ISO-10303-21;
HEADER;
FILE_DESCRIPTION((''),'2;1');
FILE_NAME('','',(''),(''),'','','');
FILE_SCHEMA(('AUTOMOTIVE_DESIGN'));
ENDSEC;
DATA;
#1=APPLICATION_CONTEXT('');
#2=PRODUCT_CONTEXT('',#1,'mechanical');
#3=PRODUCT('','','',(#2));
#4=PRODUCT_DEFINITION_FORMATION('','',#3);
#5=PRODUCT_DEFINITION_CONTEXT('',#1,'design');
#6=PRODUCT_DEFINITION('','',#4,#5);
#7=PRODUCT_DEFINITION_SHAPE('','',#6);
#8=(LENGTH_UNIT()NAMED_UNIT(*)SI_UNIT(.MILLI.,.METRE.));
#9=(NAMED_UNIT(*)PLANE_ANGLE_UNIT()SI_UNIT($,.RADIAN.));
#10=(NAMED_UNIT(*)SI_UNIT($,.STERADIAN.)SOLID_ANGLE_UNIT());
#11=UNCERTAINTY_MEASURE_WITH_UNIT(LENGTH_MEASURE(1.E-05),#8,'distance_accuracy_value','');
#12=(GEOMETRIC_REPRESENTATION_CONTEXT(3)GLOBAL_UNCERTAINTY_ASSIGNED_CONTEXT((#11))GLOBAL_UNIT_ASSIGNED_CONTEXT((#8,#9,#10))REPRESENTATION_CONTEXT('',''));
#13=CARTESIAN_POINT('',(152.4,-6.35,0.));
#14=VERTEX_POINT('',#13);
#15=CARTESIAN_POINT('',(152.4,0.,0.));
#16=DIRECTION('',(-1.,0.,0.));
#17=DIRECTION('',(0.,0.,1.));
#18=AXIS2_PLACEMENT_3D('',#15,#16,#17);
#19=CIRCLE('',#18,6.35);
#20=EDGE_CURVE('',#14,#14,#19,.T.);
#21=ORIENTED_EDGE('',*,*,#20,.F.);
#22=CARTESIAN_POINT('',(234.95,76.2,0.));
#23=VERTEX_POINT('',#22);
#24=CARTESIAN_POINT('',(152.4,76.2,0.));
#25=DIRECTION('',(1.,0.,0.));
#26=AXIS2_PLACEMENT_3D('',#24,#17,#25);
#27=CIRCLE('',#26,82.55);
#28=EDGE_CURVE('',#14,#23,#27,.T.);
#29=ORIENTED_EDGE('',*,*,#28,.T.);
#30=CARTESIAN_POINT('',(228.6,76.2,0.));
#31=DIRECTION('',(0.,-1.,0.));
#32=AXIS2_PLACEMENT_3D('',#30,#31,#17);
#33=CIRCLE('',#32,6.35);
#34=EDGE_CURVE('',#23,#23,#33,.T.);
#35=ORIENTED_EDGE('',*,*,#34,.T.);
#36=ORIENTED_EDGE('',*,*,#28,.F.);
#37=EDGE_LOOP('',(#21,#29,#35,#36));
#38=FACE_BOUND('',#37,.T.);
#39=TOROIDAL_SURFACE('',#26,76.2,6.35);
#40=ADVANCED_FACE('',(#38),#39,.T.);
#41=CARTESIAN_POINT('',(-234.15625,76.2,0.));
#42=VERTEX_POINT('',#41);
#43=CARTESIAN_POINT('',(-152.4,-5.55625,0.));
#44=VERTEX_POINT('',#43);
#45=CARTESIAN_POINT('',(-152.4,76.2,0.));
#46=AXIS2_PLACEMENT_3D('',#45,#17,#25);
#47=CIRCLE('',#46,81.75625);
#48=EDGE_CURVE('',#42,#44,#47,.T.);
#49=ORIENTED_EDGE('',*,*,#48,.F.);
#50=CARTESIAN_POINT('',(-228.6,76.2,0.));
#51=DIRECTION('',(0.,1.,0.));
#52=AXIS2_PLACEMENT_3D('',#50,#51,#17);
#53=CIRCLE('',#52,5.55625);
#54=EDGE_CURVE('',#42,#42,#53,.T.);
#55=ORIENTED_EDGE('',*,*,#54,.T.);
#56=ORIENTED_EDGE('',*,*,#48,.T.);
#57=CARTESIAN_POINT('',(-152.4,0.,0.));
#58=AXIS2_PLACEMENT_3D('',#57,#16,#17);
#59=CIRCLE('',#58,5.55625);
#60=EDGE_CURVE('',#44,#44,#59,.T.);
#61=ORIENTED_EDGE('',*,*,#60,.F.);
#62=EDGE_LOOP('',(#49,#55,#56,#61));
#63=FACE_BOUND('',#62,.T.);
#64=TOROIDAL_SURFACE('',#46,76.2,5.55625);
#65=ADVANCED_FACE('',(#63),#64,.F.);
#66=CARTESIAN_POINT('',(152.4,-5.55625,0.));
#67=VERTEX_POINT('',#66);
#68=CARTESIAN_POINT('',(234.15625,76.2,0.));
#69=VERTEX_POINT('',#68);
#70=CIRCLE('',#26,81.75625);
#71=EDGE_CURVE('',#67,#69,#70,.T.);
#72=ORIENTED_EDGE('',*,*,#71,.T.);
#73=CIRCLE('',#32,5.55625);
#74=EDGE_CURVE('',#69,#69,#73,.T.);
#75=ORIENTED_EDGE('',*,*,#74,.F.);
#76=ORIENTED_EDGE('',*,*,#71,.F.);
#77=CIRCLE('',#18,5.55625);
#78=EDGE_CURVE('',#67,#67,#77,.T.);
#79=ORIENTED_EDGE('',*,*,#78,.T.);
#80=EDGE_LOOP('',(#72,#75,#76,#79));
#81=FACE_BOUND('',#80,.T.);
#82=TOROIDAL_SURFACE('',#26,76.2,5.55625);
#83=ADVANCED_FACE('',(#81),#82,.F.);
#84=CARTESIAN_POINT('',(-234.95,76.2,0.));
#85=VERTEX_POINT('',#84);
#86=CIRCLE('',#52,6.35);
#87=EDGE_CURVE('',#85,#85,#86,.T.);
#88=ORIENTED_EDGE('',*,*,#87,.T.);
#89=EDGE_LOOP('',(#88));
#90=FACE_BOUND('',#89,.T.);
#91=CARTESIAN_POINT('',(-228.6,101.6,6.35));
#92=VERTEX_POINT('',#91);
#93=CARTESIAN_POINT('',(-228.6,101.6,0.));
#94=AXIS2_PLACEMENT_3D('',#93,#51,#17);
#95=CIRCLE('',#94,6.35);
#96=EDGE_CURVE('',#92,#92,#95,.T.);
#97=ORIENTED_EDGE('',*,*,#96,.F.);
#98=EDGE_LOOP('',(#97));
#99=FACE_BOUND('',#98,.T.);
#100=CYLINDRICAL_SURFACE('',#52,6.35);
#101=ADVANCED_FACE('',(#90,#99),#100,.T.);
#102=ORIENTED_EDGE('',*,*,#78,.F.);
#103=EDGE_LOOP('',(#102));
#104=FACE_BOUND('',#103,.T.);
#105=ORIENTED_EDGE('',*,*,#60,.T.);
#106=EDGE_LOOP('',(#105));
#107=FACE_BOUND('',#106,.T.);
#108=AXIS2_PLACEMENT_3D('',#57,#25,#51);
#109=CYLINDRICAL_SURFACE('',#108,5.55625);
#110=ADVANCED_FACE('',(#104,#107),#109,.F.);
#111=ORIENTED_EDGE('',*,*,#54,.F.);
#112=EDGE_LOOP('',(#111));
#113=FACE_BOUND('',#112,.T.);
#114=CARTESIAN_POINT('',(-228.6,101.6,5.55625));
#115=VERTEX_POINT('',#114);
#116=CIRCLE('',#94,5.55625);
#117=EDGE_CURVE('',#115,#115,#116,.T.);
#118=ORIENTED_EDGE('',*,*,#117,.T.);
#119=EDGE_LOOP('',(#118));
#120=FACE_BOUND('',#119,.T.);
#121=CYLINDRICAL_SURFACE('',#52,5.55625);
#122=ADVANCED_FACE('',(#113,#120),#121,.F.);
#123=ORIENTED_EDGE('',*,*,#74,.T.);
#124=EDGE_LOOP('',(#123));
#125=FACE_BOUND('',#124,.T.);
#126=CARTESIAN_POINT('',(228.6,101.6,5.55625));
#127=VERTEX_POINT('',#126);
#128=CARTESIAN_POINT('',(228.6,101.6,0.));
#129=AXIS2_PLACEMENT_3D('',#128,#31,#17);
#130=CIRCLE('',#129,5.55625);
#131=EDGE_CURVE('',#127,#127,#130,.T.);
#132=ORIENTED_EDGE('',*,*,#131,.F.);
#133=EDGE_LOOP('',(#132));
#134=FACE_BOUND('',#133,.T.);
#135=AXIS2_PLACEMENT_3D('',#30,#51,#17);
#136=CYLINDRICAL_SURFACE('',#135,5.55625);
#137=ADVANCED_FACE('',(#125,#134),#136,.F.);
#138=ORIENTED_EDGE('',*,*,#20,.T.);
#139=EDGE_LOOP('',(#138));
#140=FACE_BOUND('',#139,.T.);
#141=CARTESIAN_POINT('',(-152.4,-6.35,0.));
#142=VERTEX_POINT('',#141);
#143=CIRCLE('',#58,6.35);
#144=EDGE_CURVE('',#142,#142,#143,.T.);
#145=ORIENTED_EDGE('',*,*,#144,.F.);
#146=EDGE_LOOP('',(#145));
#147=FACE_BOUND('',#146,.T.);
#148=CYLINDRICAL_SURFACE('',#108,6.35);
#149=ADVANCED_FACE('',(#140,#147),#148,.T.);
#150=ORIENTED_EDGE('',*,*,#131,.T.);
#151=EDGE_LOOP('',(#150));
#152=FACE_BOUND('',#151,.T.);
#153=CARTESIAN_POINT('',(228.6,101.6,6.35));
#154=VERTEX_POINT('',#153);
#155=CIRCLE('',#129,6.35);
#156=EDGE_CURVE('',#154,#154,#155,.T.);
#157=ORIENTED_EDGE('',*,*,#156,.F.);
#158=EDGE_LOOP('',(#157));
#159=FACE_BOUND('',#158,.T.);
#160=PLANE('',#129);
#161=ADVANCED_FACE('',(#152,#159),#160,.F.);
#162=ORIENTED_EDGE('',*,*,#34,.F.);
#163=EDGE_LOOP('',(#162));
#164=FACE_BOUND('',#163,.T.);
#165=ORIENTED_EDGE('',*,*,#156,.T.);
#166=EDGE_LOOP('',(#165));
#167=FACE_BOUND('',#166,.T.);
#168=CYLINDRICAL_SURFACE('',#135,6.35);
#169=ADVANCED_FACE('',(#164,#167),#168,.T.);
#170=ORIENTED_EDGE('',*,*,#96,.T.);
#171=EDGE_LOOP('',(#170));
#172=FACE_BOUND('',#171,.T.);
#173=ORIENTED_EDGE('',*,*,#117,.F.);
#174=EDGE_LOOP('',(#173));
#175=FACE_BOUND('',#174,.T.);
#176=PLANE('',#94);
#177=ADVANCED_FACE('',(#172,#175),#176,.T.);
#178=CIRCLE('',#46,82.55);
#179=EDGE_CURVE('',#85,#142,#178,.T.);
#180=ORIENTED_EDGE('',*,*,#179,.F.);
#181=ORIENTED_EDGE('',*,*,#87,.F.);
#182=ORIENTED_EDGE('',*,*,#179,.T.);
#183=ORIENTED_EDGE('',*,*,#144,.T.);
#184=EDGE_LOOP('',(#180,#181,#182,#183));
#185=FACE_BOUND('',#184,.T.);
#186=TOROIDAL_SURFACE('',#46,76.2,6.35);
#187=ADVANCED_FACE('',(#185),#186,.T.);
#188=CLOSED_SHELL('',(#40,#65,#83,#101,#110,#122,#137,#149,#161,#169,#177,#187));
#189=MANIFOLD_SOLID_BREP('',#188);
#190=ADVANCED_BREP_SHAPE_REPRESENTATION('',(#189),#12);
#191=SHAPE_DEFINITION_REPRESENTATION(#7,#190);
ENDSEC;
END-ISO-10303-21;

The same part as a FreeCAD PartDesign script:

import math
import FreeCAD as App
import Part
import Sketcher
from FreeCAD import Vector
Q = App.Units.Quantity

doc = App.newDocument("Part")
body = doc.addObject("PartDesign::Body", "Body")

# Sketch on XZ plane
sketch1 = doc.addObject("Sketcher::SketchObject", "Sketch")
body.addObject(sketch1)
sketch1.AttachmentSupport = (doc.XZ_Plane, [""])
sketch1.MapMode = "FlatFace"
sketch1.AttachmentOffset = App.Placement(Vector(0, 0, -4 * 25.4), App.Rotation())
sketch1.addGeometry(Part.Circle(Vector(-228.6, 0, 0), Vector(0, 0, 1), 6.35), False)
sketch1.addGeometry(Part.Circle(Vector(-228.6, 0, 0), Vector(0, 0, 1), 5.55625), False)
sketch1.addConstraint(Sketcher.Constraint("Coincident", 1, 3, 0, 3))
sketch1.addConstraint(Sketcher.Constraint("PointOnObject", 0, 3, -1))
sketch1.addConstraint(Sketcher.Constraint("Diameter", 0, Q("0.5 in")))
sketch1.addConstraint(Sketcher.Constraint("Diameter", 1, Q("0.4375 in")))
sketch1.addConstraint(Sketcher.Constraint("DistanceX", 0, 3, -1, 1, Q("9 in")))

# Sketch on XY plane
sketch2 = doc.addObject("Sketcher::SketchObject", "Sketch001")
body.addObject(sketch2)
sketch2.AttachmentSupport = (doc.XY_Plane, [""])
sketch2.MapMode = "FlatFace"
sketch2.addGeometry(Part.LineSegment(Vector(-228.6, 101.6, 0), Vector(-228.6, 76.2, 0)), False)
sketch2.addGeometry(Part.ArcOfCircle(Part.Circle(Vector(-152.4, 76.2, 0), Vector(0, 0, 1), 76.2), math.radians(-180), math.radians(-90)), False)
sketch2.addGeometry(Part.LineSegment(Vector(-152.4, 0, 0), Vector(152.4, 0, 0)), False)
sketch2.addGeometry(Part.ArcOfCircle(Part.Circle(Vector(152.4, 76.2, 0), Vector(0, 0, 1), 76.2), math.radians(-90), math.radians(0)), False)
sketch2.addGeometry(Part.LineSegment(Vector(228.6, 76.2, 0), Vector(228.6, 101.6, 0)), False)
sketch2.addConstraint(Sketcher.Constraint("Tangent", 0, 2, 1, 1))
sketch2.addConstraint(Sketcher.Constraint("Tangent", 1, 2, 2, 1))
sketch2.addConstraint(Sketcher.Constraint("Tangent", 2, 2, 3, 1))
sketch2.addConstraint(Sketcher.Constraint("Tangent", 3, 2, 4, 1))
sketch2.addConstraint(Sketcher.Constraint("Vertical", 0))
sketch2.addConstraint(Sketcher.Constraint("Horizontal", 2))
sketch2.addConstraint(Sketcher.Constraint("Vertical", 4))
sketch2.addConstraint(Sketcher.Constraint("Equal", 1, 3))
sketch2.addConstraint(Sketcher.Constraint("Symmetric", 1, 2, 2, 2, -1, 1))
sketch2.addConstraint(Sketcher.Constraint("Horizontal", 0, 1, 4, 2))
sketch2.addConstraint(Sketcher.Constraint("Radius", 1, Q("3 in")))
sketch2.addConstraint(Sketcher.Constraint("DistanceX", 2, 1, 2, 2, Q("12 in")))
sketch2.addConstraint(Sketcher.Constraint("DistanceY", 0, 2, 0, 1, Q("1 in")))
doc.recompute()

additivepipe = doc.addObject("PartDesign::AdditivePipe", "AdditivePipe")
body.addObject(additivepipe)
additivepipe.Profile = sketch1
additivepipe.Spine = (sketch2, ["Edge1", "Edge2", "Edge3", "Edge4", "Edge5"])

doc.recompute()
